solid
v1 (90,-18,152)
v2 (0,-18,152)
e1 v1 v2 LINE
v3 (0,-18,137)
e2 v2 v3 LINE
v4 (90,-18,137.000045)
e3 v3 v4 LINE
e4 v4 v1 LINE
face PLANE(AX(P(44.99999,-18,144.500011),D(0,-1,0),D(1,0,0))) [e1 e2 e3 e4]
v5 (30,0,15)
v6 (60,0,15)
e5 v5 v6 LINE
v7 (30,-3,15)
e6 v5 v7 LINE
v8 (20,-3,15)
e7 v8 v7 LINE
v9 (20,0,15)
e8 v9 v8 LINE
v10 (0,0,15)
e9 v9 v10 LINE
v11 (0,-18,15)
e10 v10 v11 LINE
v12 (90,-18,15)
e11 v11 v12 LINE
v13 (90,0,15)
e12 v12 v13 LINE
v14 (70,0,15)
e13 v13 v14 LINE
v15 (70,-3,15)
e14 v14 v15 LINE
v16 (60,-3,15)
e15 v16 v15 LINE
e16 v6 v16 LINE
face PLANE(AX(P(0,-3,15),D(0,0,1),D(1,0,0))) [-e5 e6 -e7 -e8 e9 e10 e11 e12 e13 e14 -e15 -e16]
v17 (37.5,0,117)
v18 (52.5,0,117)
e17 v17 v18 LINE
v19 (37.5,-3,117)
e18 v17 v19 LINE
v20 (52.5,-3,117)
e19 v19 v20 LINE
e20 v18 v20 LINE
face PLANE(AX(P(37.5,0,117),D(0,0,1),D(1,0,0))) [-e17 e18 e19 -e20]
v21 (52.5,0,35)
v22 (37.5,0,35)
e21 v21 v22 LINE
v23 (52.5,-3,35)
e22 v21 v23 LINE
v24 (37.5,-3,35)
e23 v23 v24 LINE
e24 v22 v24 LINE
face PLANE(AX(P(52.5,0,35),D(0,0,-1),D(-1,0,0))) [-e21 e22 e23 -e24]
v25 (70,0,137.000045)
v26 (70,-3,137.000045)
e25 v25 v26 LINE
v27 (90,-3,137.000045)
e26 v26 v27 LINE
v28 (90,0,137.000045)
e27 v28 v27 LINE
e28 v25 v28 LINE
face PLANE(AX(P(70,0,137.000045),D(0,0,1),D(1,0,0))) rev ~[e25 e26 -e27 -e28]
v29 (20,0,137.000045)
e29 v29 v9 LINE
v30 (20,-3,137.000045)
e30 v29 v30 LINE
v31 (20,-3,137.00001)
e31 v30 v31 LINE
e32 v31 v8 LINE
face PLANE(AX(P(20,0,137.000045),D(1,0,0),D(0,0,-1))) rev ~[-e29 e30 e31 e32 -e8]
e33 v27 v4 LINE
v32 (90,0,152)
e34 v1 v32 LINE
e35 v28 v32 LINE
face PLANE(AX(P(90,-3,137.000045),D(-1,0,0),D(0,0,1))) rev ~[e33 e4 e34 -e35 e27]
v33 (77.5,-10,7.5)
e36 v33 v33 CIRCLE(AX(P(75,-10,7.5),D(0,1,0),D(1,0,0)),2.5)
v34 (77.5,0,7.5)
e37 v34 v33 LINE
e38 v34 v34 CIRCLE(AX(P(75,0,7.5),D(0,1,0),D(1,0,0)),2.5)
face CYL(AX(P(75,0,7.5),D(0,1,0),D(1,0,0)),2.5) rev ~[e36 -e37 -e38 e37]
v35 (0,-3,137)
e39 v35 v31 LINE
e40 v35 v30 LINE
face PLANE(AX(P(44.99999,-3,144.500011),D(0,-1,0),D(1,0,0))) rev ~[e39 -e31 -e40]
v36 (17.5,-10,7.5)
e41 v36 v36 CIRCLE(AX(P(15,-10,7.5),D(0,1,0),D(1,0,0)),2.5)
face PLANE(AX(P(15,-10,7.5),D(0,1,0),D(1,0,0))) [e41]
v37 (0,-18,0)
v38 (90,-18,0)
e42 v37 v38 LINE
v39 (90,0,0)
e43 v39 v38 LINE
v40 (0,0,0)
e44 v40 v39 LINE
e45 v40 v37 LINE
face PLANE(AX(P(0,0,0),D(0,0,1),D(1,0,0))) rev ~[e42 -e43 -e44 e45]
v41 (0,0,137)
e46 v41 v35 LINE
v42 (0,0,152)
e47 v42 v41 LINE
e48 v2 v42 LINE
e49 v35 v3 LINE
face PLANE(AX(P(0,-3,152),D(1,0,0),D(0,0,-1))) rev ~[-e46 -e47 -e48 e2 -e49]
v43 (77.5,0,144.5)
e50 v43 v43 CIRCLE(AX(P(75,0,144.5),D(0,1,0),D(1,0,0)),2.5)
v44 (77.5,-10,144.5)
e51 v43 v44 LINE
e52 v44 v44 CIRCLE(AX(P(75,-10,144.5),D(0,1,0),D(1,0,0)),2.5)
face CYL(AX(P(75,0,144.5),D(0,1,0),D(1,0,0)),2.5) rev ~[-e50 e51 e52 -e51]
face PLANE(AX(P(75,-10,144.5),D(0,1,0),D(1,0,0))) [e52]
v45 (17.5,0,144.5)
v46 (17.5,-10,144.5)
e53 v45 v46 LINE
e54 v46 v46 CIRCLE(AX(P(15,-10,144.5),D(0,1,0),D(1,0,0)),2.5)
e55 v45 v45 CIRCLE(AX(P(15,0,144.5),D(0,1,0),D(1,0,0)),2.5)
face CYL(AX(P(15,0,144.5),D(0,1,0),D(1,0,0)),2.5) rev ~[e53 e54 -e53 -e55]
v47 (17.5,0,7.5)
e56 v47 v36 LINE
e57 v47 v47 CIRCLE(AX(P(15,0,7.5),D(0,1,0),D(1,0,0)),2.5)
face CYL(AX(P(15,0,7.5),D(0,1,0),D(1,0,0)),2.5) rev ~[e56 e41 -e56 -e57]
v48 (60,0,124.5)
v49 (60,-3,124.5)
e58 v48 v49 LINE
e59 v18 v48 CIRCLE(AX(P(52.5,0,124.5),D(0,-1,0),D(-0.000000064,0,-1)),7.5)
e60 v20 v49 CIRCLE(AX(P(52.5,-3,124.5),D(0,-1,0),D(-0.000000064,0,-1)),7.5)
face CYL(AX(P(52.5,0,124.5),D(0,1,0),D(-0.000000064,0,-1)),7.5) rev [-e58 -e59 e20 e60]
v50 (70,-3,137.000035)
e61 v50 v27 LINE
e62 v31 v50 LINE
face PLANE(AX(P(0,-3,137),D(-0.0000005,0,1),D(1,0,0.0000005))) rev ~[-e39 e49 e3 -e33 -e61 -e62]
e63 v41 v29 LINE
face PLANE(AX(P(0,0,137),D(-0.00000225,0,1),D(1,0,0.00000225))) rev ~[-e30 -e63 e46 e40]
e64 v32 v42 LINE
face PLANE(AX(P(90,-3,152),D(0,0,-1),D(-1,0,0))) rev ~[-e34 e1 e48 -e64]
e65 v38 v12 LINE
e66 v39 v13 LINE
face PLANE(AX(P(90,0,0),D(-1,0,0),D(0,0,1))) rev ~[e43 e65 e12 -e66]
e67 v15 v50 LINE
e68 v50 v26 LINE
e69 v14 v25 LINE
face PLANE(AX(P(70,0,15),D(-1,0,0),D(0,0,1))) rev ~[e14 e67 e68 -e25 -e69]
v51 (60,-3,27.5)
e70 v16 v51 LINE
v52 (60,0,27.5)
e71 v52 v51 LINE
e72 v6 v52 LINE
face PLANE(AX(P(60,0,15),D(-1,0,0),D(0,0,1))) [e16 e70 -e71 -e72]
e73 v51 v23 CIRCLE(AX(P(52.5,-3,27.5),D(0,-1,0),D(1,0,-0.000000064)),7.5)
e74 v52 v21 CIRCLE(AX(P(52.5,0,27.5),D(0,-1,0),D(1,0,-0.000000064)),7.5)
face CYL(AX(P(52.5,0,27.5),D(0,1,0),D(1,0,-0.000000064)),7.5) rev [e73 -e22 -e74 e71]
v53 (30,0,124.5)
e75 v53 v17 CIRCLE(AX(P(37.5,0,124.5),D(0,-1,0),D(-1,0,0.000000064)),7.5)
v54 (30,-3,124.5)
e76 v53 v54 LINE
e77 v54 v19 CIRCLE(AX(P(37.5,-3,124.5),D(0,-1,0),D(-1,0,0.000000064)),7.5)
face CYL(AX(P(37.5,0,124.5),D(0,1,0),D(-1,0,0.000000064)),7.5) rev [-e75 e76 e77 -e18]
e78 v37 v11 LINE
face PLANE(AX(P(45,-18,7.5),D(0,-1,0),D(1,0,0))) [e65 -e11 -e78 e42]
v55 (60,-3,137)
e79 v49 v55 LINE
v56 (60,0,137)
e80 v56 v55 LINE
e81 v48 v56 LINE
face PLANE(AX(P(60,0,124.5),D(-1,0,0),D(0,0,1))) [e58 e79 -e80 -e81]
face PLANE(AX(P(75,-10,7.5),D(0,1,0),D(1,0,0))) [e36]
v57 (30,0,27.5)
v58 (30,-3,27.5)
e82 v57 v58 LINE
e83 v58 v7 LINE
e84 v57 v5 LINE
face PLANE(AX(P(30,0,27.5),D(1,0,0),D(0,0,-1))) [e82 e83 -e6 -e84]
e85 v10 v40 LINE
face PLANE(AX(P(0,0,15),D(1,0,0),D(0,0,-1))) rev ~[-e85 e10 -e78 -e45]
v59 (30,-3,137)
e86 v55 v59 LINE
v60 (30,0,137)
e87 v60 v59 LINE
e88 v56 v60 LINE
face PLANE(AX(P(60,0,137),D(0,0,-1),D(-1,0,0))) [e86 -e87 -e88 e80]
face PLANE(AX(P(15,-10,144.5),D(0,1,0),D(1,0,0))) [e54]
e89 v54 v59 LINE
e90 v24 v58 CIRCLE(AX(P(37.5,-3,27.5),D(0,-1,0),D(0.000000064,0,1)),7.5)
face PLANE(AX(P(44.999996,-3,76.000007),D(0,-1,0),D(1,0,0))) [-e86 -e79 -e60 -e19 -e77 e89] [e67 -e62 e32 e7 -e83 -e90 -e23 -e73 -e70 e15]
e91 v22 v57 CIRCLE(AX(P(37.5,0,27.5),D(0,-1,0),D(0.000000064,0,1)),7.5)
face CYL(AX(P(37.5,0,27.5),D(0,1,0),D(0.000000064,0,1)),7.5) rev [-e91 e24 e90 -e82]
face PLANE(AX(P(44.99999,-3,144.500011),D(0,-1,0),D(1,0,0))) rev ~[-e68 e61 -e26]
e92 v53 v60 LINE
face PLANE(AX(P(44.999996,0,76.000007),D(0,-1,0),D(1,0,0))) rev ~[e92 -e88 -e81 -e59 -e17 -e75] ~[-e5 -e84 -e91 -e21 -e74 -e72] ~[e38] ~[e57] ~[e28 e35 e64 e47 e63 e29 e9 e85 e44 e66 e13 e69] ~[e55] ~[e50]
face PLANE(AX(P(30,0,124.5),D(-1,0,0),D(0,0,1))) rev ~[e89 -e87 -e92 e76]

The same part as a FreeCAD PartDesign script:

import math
import FreeCAD as App
import Part
import Sketcher
from FreeCAD import Vector
Q = App.Units.Quantity

doc = App.newDocument("Part")
body = doc.addObject("PartDesign::Body", "Body")

sketch1 = body.newObject("Sketcher::SketchObject", "Sketch")
sketch1.AttachmentSupport = (doc.getObject("XZ_Plane"), [""])
sketch1.MapMode = "FlatFace"
sketch1.addGeometry([
    Part.LineSegment(Vector(0, 152, 0), Vector(0, 137, 0)),
    Part.LineSegment(Vector(0, 137, 0), Vector(20, 137, 0)),
    Part.LineSegment(Vector(20, 137, 0), Vector(20, 15, 0)),
    Part.LineSegment(Vector(20, 15, 0), Vector(0, 15, 0)),
    Part.LineSegment(Vector(0, 15, 0), Vector(0, 0, 0)),
    Part.LineSegment(Vector(0, 0, 0), Vector(90, 0, 0)),
    Part.LineSegment(Vector(90, 0, 0), Vector(90, 15, 0)),
    Part.LineSegment(Vector(90, 15, 0), Vector(70, 15, 0)),
    Part.LineSegment(Vector(70, 15, 0), Vector(70, 137, 0)),
    Part.LineSegment(Vector(70, 137, 0), Vector(90, 137, 0)),
    Part.LineSegment(Vector(90, 137, 0), Vector(90, 152, 0)),
    Part.LineSegment(Vector(90, 152, 0), Vector(0, 152, 0)),
    Part.ArcOfCircle(Part.Circle(Vector(37, 28, 0), Vector(0, 0, 1), 7), math.radians(90), math.radians(180)),
    Part.LineSegment(Vector(38, 35, 0), Vector(52, 35, 0)),
    Part.ArcOfCircle(Part.Circle(Vector(53, 28, 0), Vector(0, 0, 1), 7), math.radians(0), math.radians(90)),
    Part.LineSegment(Vector(60, 28, 0), Vector(60, 15, 0)),
    Part.LineSegment(Vector(60, 15, 0), Vector(30, 15, 0)),
    Part.LineSegment(Vector(30, 15, 0), Vector(30, 28, 0)),
    Part.ArcOfCircle(Part.Circle(Vector(37, 124, 0), Vector(0, 0, 1), 7), math.radians(180), math.radians(270)),
    Part.LineSegment(Vector(30, 124, 0), Vector(30, 137, 0)),
    Part.LineSegment(Vector(30, 137, 0), Vector(60, 137, 0)),
    Part.LineSegment(Vector(60, 137, 0), Vector(60, 124, 0)),
    Part.ArcOfCircle(Part.Circle(Vector(53, 124, 0), Vector(0, 0, 1), 7), math.radians(-90), math.radians(0)),
    Part.LineSegment(Vector(52, 117, 0), Vector(38, 117, 0)),
], False)
sketch1.addConstraint([
    Sketcher.Constraint("Coincident", 0, 2, 1, 1),
    Sketcher.Constraint("Coincident", 1, 2, 2, 1),
    Sketcher.Constraint("Coincident", 2, 2, 3, 1),
    Sketcher.Constraint("Coincident", 3, 2, 4, 1),
    Sketcher.Constraint("Coincident", 4, 2, 5, 1),
    Sketcher.Constraint("Coincident", 5, 2, 6, 1),
    Sketcher.Constraint("Coincident", 6, 2, 7, 1),
    Sketcher.Constraint("Coincident", 7, 2, 8, 1),
    Sketcher.Constraint("Coincident", 8, 2, 9, 1),
    Sketcher.Constraint("Coincident", 9, 2, 10, 1),
    Sketcher.Constraint("Coincident", 10, 2, 11, 1),
    Sketcher.Constraint("Coincident", 11, 2, 0, 1),
    Sketcher.Constraint("Tangent", 12, 1, 13, 1),
    Sketcher.Constraint("Tangent", 13, 2, 14, 2),
    Sketcher.Constraint("Tangent", 14, 1, 15, 1),
    Sketcher.Constraint("Coincident", 15, 2, 16, 1),
    Sketcher.Constraint("Coincident", 16, 2, 17, 1),
    Sketcher.Constraint("Tangent", 17, 2, 12, 2),
    Sketcher.Constraint("Tangent", 18, 1, 19, 1),
    Sketcher.Constraint("Coincident", 19, 2, 20, 1),
    Sketcher.Constraint("Coincident", 20, 2, 21, 1),
    Sketcher.Constraint("Tangent", 21, 2, 22, 2),
    Sketcher.Constraint("Tangent", 22, 1, 23, 1),
    Sketcher.Constraint("Tangent", 23, 2, 18, 2),
    Sketcher.Constraint("Vertical", 0),
    Sketcher.Constraint("Vertical", 2),
    Sketcher.Constraint("Horizontal", 3),
    Sketcher.Constraint("Vertical", 4),
    Sketcher.Constraint("Horizontal", 5),
    Sketcher.Constraint("Vertical", 6),
    Sketcher.Constraint("Horizontal", 7),
    Sketcher.Constraint("Vertical", 8),
    Sketcher.Constraint("Horizontal", 9),
    Sketcher.Constraint("Vertical", 10),
    Sketcher.Constraint("Horizontal", 11),
    Sketcher.Constraint("Horizontal", 13),
    Sketcher.Constraint("Vertical", 15),
    Sketcher.Constraint("Horizontal", 16),
    Sketcher.Constraint("Vertical", 17),
    Sketcher.Constraint("Vertical", 19),
    Sketcher.Constraint("Horizontal", 20),
    Sketcher.Constraint("Vertical", 21),
    Sketcher.Constraint("Horizontal", 23),
    Sketcher.Constraint("Coincident", 4, 2, -1, 1),
    Sketcher.Constraint("Equal", 12, 14),
    Sketcher.Constraint("Equal", 14, 18),
    Sketcher.Constraint("Equal", 18, 22),
    Sketcher.Constraint("PointOnObject", 0, 2, -2),
    Sketcher.Constraint("Horizontal", 3, 2, 6, 2),
    Sketcher.Constraint("Horizontal", 1, 2, 8, 2),
    Sketcher.Constraint("Horizontal", 7, 2, 15, 2),
    Sketcher.Constraint("Horizontal", 0, 2, 19, 2),
    Sketcher.Constraint("Vertical", 12, 3, 18, 3),
    Sketcher.Constraint("Vertical", 14, 3, 22, 3),
    Sketcher.Constraint("Vertical", 6, 2, 9, 2),
    Sketcher.Constraint("Equal", 3, 7),
    Sketcher.Constraint("Equal", 23, 0),
    Sketcher.Constraint("Equal", 0, 4),
    Sketcher.Constraint("Equal", 17, 19),
    Sketcher.Constraint("Radius", 12, Q("7.5 mm")),
    Sketcher.Constraint("DistanceX", 3, 2, 3, 1, Q("20 mm")),
    Sketcher.Constraint("DistanceX", 5, 1, 5, 2, Q("90 mm")),
    Sketcher.Constraint("DistanceX", 13, 1, 13, 2, Q("15 mm")),
    Sketcher.Constraint("DistanceY", 15, 2, 15, 1, Q("12.5 mm")),
    Sketcher.Constraint("DistanceY", -1, 1, 0, 2, Q("137 mm")),
    Sketcher.Constraint("DistanceX", -1, 1, 14, 1, Q("60 mm")),
    Sketcher.Constraint("DistanceY", 2, 2, 2, 1, Q("122.000045 mm")),
])
pad1 = body.newObject("PartDesign::Pad", "Pad")
pad1.Profile = sketch1
pad1.Length = 3

sketch2 = body.newObject("Sketcher::SketchObject", "Sketch001")
sketch2.AttachmentSupport = (doc.getObject("XZ_Plane"), [""])
sketch2.MapMode = "FlatFace"
sketch2.AttachmentOffset = App.Placement(Vector(0, 0, 3), App.Rotation())
sketch2.addGeometry([
    Part.LineSegment(Vector(0, 152, 0), Vector(0, 137, 0)),
    Part.LineSegment(Vector(0, 137, 0), Vector(90, 137.000045, 0)),
    Part.LineSegment(Vector(90, 137.000045, 0), Vector(90, 152, 0)),
    Part.LineSegment(Vector(90, 152, 0), Vector(0, 152, 0)),
    Part.LineSegment(Vector(0, 15, 0), Vector(0, 0, 0)),
    Part.LineSegment(Vector(0, 0, 0), Vector(90, 0, 0)),
    Part.LineSegment(Vector(90, 0, 0), Vector(90, 15, 0)),
    Part.LineSegment(Vector(90, 15, 0), Vector(0, 15, 0)),
], False)
sketch2.addConstraint([
    Sketcher.Constraint("Coincident", 0, 2, 1, 1),
    Sketcher.Constraint("Coincident", 1, 2, 2, 1),
    Sketcher.Constraint("Coincident", 2, 2, 3, 1),
    Sketcher.Constraint("Coincident", 3, 2, 0, 1),
    Sketcher.Constraint("Coincident", 4, 2, 5, 1),
    Sketcher.Constraint("Coincident", 5, 2, 6, 1),
    Sketcher.Constraint("Coincident", 6, 2, 7, 1),
    Sketcher.Constraint("Coincident", 7, 2, 4, 1),
    Sketcher.Constraint("Vertical", 0),
    Sketcher.Constraint("Vertical", 2),
    Sketcher.Constraint("Horizontal", 3),
    Sketcher.Constraint("Vertical", 4),
    Sketcher.Constraint("Horizontal", 5),
    Sketcher.Constraint("Vertical", 6),
    Sketcher.Constraint("Horizontal", 7),
    Sketcher.Constraint("Coincident", 4, 2, -1, 1),
    Sketcher.Constraint("PointOnObject", 0, 2, -2),
    Sketcher.Constraint("Vertical", 2, 2, 5, 2),
    Sketcher.Constraint("Equal", 0, 4),
    Sketcher.Constraint("DistanceX", 3, 2, 3, 1, Q("90 mm")),
    Sketcher.Constraint("DistanceY", 0, 2, 0, 1, Q("15 mm")),
    Sketcher.Constraint("DistanceY", -1, 1, 0, 2, Q("137 mm")),
    Sketcher.Constraint("DistanceY", 2, 1, 2, 2, Q("14.999955 mm")),
])
pad2 = body.newObject("PartDesign::Pad", "Pad001")
pad2.Profile = sketch2
pad2.Length = 15

sketch3 = body.newObject("Sketcher::SketchObject", "Sketch002")
sketch3.AttachmentSupport = (doc.getObject("XZ_Plane"), [""])
sketch3.MapMode = "FlatFace"
sketch3.addGeometry([
    Part.Circle(Vector(15, 7.5, 0), Vector(0, 0, 1), 2.5),
    Part.Circle(Vector(75, 7.5, 0), Vector(0, 0, 1), 2.5),
    Part.Circle(Vector(75, 144.5, 0), Vector(0, 0, 1), 2.5),
    Part.Circle(Vector(15, 144.5, 0), Vector(0, 0, 1), 2.5),
], False)
sketch3.addConstraint([
    Sketcher.Constraint("Equal", 0, 1),
    Sketcher.Constraint("Equal", 1, 2),
    Sketcher.Constraint("Equal", 2, 3),
    Sketcher.Constraint("Horizontal", 0, 3, 1, 3),
    Sketcher.Constraint("Horizontal", 2, 3, 3, 3),
    Sketcher.Constraint("Vertical", 1, 3, 2, 3),
    Sketcher.Constraint("Vertical", 0, 3, 3, 3),
    Sketcher.Constraint("Diameter", 0, Q("5 mm")),
    Sketcher.Constraint("DistanceX", -1, 1, 0, 3, Q("15 mm")),
    Sketcher.Constraint("DistanceX", -1, 1, 1, 3, Q("75 mm")),
    Sketcher.Constraint("DistanceY", 1, 3, 2, 3, Q("137 mm")),
    Sketcher.Constraint("DistanceY", -1, 1, 0, 3, Q("7.5 mm")),
])
pocket1 = body.newObject("PartDesign::Pocket", "Pocket")
pocket1.Profile = sketch3
pocket1.Length = 10
pocket1.Reversed = True

doc.recompute()
